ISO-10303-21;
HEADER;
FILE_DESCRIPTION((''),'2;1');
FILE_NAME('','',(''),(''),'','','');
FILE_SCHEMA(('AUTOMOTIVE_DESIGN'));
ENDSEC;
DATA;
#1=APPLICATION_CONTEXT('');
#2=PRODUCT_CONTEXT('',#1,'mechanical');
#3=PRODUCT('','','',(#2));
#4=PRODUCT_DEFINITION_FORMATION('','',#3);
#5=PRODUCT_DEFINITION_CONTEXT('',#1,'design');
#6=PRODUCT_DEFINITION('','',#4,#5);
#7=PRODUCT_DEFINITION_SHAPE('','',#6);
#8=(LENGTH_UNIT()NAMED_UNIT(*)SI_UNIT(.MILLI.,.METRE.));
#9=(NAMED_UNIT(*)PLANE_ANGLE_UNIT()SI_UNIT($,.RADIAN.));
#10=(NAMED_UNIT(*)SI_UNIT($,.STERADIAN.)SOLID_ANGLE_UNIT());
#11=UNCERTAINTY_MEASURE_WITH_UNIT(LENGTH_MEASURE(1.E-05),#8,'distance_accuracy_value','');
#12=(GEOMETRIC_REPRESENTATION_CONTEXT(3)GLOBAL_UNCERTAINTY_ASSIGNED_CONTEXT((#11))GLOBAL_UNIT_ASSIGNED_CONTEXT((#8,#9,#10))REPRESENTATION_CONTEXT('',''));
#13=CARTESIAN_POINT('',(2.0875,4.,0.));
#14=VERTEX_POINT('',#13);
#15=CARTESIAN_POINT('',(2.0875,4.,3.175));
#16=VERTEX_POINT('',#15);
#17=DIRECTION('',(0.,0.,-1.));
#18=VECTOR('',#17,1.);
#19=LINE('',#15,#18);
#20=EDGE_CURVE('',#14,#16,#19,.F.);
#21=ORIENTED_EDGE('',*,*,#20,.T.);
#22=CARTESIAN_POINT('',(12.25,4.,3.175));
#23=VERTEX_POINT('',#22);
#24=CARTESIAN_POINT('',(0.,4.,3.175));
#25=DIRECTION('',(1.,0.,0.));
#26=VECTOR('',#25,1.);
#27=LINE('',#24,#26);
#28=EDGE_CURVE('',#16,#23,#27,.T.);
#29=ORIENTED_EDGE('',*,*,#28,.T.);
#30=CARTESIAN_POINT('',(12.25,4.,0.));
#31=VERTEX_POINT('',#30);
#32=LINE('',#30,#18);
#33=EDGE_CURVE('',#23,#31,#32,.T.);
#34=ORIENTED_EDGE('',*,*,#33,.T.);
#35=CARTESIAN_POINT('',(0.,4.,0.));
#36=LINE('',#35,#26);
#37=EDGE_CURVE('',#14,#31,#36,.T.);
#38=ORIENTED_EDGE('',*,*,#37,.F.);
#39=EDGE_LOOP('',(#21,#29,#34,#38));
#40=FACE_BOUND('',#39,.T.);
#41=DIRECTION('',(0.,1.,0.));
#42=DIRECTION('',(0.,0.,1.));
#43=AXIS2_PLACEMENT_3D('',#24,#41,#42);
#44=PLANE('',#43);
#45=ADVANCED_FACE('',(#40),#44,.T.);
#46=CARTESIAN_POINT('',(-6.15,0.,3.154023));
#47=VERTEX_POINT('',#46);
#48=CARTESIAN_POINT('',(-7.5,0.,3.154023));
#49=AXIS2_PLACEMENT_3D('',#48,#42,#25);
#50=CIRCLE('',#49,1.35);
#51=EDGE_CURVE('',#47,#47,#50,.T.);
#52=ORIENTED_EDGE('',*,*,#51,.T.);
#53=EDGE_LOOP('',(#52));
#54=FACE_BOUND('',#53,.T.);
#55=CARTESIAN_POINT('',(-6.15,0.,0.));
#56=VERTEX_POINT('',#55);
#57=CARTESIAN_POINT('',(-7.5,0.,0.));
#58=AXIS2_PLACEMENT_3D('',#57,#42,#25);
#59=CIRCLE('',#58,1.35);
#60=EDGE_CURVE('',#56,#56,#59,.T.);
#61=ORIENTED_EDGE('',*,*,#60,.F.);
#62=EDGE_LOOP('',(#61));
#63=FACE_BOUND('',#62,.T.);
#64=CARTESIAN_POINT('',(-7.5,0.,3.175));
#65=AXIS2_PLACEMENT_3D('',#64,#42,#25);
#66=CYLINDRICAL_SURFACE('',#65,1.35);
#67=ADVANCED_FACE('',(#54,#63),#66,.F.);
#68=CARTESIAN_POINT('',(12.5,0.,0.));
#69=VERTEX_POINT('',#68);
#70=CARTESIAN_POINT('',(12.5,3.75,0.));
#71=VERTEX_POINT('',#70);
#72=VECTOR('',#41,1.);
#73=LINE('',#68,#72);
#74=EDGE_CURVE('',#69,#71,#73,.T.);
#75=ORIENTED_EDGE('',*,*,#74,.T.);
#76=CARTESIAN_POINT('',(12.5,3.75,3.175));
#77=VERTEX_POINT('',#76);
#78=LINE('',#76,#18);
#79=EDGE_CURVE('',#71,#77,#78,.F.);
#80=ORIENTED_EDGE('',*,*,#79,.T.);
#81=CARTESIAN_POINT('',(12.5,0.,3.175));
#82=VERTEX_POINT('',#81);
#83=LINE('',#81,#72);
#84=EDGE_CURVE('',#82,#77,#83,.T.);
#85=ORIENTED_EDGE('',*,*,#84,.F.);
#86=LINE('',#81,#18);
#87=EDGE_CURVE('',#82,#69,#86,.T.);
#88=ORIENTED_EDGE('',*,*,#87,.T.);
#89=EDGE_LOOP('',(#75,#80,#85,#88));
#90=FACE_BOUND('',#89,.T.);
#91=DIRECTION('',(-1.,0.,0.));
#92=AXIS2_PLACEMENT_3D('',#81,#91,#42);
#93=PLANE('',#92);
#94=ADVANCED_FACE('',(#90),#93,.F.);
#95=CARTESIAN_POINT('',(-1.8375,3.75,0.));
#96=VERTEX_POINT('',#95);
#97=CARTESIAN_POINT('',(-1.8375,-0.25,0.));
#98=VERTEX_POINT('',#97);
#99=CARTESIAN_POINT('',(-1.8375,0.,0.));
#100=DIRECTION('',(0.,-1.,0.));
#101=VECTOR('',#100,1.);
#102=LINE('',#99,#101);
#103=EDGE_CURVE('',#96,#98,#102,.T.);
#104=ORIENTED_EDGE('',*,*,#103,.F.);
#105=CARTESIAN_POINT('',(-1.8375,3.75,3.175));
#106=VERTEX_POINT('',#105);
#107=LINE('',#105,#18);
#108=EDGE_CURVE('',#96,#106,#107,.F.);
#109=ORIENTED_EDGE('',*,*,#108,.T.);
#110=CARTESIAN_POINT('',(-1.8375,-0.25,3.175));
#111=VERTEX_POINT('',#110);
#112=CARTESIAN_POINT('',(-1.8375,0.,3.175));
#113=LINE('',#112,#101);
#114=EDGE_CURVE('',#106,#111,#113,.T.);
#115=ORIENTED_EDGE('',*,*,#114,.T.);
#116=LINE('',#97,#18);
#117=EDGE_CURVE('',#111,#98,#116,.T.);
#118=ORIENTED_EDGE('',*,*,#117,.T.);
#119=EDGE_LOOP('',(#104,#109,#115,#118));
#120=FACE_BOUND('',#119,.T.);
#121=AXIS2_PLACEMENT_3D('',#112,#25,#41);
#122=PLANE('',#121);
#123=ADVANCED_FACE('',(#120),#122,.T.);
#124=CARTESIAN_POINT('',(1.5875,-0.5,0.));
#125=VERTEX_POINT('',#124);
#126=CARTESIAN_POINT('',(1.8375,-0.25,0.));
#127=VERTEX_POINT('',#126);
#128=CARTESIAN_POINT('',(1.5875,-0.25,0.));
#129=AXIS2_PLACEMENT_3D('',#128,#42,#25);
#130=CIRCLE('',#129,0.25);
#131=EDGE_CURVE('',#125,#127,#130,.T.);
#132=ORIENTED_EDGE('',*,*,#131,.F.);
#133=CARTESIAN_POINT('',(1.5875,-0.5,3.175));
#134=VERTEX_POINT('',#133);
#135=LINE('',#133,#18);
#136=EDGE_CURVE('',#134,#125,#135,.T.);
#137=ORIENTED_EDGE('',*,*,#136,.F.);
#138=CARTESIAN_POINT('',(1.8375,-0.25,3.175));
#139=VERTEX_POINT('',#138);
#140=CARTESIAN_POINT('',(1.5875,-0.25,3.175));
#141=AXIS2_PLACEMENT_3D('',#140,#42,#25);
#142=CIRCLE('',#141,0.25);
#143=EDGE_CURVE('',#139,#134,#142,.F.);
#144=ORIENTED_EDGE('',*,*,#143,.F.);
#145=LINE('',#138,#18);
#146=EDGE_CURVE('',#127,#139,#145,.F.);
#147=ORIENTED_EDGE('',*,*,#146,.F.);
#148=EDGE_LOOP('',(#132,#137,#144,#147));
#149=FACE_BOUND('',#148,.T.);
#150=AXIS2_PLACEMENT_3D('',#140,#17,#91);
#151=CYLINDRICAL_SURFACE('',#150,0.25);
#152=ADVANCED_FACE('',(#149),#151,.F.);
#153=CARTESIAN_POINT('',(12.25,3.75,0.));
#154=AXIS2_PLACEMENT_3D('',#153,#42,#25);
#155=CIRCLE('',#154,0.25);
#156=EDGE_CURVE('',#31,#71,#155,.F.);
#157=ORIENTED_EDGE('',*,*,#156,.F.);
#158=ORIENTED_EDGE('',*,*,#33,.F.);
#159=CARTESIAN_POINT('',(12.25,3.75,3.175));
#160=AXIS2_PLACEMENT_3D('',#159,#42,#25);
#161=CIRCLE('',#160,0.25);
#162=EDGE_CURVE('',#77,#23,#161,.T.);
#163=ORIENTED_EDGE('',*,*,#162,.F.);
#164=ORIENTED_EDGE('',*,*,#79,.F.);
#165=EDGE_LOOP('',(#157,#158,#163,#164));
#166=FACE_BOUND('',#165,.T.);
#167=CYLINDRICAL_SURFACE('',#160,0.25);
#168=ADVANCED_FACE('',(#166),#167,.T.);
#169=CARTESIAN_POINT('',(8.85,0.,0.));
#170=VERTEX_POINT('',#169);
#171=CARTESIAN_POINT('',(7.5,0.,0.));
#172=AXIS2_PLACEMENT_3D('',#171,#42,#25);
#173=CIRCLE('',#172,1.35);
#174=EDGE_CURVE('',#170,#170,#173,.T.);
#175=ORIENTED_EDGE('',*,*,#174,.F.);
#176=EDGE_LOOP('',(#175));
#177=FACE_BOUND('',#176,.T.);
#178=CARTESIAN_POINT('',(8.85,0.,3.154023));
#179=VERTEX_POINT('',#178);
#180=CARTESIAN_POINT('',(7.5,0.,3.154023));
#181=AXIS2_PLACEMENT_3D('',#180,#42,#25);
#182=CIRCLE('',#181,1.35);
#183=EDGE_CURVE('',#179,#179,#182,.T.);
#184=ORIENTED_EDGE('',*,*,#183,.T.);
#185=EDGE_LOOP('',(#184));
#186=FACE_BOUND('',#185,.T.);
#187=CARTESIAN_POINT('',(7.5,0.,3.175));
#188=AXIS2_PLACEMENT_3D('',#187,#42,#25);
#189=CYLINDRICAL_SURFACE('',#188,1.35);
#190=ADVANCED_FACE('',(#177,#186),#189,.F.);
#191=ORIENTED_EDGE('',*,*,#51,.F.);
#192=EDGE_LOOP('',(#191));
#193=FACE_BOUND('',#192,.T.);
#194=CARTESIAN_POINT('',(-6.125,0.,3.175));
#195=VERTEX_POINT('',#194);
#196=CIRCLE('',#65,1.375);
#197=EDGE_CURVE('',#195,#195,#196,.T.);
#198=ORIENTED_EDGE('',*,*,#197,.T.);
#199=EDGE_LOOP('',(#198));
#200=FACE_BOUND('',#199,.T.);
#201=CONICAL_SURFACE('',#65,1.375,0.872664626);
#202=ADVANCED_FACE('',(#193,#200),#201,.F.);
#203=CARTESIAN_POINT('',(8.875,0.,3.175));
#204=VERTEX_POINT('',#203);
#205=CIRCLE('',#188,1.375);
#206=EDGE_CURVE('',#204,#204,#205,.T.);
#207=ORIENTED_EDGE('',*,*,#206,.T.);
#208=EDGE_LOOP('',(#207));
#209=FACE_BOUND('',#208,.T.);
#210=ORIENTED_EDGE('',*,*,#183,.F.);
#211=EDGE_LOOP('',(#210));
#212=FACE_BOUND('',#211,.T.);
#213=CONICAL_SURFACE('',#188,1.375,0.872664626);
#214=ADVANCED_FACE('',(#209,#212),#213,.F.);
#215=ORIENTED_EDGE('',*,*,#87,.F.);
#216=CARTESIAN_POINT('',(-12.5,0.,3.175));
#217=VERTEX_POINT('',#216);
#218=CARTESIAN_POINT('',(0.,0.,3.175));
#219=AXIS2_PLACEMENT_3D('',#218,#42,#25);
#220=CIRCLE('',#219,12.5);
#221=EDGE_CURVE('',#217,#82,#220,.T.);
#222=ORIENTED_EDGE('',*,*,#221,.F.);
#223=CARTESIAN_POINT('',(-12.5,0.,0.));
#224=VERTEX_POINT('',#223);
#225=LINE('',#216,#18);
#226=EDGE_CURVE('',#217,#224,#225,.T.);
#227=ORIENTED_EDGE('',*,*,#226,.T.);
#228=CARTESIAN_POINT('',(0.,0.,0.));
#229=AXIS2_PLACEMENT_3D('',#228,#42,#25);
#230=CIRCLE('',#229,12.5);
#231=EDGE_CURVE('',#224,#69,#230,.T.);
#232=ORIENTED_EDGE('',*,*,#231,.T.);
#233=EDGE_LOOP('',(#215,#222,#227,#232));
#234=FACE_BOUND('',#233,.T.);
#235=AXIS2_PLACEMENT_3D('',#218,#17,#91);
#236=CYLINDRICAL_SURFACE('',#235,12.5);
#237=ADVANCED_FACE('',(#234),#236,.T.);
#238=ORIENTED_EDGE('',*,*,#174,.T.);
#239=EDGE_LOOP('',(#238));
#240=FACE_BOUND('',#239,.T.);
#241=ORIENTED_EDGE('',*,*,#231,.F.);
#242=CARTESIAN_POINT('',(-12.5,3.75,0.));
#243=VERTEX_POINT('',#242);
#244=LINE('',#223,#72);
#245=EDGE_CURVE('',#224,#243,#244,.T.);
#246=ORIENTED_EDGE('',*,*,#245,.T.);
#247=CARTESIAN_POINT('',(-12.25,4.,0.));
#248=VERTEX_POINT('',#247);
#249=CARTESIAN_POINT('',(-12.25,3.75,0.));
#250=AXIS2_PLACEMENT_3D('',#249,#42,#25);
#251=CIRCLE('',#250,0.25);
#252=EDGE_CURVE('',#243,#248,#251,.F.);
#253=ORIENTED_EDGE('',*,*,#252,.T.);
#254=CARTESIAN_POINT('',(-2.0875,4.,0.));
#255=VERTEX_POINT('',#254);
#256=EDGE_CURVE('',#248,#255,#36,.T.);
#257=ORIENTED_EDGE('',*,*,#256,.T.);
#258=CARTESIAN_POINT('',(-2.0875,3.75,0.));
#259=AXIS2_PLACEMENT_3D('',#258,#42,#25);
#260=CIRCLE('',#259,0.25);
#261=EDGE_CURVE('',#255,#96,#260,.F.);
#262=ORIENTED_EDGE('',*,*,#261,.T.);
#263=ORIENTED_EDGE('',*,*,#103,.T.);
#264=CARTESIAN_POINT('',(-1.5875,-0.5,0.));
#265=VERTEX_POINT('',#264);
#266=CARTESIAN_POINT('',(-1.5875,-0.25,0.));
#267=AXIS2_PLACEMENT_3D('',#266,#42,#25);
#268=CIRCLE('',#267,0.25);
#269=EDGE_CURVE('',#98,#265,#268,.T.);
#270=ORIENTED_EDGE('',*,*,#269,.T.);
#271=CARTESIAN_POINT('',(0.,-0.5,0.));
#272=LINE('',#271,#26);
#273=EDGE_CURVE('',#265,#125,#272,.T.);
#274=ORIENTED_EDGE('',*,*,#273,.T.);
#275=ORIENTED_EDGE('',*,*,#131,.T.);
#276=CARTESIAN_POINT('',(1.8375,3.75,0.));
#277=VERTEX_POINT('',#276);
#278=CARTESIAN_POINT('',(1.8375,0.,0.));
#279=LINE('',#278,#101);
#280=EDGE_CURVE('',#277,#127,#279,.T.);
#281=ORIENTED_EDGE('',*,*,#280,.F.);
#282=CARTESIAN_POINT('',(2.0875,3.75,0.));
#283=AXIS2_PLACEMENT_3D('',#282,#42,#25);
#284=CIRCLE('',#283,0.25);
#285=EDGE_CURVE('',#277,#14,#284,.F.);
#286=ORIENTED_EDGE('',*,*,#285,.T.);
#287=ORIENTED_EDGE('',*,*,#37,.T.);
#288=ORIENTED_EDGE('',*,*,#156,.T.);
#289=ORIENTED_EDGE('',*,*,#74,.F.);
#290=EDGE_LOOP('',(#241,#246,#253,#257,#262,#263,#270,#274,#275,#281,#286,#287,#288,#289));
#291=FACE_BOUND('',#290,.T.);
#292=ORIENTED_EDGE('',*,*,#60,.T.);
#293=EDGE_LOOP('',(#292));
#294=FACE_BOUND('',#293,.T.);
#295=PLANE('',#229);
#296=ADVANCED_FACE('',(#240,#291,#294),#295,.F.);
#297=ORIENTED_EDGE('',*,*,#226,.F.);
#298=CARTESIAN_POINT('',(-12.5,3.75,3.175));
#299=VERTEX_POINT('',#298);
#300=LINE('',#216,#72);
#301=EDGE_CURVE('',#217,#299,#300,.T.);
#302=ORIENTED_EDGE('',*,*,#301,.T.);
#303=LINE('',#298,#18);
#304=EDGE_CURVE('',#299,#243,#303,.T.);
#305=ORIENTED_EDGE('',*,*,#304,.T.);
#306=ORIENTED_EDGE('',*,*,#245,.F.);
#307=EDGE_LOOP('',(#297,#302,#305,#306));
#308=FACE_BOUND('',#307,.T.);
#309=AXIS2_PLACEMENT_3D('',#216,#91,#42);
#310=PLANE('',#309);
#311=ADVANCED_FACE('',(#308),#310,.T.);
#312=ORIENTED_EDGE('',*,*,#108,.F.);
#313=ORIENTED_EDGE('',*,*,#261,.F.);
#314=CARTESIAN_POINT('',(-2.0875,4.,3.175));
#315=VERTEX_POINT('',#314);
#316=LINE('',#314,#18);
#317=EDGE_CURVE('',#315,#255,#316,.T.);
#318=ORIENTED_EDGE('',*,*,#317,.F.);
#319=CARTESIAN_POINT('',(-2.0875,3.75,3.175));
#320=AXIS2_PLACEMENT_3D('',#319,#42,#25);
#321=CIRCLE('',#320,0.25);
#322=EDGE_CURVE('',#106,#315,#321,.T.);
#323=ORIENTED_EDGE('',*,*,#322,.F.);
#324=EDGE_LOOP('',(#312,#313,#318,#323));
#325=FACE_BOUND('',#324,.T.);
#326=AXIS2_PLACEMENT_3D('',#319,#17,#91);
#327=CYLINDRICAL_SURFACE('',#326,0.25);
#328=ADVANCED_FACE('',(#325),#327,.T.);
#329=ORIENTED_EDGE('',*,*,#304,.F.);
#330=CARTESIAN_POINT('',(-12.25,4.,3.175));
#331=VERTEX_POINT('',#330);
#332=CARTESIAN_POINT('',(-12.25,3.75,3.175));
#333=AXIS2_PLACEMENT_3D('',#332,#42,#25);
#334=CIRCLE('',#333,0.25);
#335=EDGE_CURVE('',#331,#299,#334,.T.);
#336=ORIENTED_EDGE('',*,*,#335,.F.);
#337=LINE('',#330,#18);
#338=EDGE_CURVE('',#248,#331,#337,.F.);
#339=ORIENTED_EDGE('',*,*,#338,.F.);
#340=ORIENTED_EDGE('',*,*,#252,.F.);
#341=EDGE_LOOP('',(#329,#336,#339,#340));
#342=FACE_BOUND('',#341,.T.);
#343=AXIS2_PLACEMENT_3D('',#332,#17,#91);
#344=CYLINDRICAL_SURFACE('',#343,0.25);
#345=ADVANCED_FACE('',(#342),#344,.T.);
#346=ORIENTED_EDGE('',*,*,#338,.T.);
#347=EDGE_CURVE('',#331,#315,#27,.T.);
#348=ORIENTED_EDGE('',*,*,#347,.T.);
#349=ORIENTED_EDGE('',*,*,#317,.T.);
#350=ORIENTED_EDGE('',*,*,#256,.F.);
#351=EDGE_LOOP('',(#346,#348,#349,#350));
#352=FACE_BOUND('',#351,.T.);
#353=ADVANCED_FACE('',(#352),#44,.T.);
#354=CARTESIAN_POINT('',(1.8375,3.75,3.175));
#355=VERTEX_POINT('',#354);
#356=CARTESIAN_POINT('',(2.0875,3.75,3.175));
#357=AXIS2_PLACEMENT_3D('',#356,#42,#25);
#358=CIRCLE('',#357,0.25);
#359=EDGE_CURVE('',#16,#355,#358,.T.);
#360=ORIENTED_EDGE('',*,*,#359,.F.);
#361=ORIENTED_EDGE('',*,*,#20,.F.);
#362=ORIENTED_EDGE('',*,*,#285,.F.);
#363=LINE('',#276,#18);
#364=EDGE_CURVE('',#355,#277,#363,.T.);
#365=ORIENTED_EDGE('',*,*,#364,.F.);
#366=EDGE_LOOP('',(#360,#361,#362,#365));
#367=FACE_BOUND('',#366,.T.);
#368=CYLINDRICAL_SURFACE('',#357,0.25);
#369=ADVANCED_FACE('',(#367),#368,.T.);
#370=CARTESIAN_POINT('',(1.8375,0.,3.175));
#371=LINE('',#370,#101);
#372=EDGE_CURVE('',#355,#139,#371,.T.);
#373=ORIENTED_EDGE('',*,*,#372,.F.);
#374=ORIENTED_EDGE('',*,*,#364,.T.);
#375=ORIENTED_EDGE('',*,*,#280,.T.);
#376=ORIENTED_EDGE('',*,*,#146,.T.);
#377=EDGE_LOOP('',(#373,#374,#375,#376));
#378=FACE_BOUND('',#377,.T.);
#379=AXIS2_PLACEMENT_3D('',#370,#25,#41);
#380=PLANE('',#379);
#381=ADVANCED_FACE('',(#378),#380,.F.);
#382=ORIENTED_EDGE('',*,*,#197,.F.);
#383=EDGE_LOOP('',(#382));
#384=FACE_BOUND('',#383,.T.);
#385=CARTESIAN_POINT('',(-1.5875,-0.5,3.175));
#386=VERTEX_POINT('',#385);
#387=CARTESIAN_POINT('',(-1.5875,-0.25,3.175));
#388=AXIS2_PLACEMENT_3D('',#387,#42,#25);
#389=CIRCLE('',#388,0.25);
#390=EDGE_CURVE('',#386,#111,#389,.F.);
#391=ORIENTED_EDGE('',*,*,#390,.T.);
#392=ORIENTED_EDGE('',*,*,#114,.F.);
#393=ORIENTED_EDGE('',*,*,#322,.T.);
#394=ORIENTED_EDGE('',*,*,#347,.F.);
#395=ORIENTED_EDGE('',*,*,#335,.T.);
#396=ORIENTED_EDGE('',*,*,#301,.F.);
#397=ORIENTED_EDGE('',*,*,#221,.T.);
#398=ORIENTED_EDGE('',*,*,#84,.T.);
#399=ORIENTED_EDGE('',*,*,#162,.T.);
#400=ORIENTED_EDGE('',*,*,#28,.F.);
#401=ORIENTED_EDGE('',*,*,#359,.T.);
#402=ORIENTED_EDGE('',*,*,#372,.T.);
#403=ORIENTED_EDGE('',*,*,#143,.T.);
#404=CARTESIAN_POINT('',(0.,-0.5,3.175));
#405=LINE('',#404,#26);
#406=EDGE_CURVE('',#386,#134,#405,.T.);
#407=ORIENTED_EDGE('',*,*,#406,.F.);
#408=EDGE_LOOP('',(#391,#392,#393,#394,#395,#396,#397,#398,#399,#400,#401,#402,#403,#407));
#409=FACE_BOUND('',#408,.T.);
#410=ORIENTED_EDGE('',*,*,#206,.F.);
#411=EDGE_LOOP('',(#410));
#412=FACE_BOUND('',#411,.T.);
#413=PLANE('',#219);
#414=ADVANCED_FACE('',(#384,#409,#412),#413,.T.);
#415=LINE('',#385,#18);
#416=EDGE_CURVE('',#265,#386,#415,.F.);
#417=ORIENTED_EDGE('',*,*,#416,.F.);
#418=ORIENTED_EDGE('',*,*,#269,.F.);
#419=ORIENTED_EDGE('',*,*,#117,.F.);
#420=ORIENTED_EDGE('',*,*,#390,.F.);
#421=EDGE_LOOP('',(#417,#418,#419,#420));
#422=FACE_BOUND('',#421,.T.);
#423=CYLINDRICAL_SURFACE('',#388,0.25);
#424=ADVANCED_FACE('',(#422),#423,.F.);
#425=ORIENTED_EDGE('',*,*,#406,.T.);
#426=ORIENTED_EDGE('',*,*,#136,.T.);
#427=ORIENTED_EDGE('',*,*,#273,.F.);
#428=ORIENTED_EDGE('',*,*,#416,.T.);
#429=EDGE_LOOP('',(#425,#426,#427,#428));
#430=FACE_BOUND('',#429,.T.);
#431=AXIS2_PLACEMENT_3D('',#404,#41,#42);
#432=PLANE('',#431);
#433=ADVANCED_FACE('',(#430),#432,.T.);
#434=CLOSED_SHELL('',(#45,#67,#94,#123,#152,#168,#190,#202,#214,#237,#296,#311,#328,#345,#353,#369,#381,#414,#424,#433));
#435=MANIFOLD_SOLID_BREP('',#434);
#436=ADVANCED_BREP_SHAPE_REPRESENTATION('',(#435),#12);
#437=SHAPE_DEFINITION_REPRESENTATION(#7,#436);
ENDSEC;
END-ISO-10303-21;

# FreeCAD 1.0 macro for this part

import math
import FreeCAD as App
import Part
import Sketcher
from FreeCAD import Vector
Q = App.Units.Quantity


def edges_at(feature, points):
    """Names of the edges that pass closest to the given points."""
    edges = feature.Shape.Edges
    near = lambda p: min(range(len(edges)), key=lambda i: edges[i].distToShape(Part.Vertex(*p))[0])
    return sorted({f"Edge{near(p) + 1}" for p in points})

doc = App.newDocument("Part")
params = doc.addObject("Spreadsheet::Sheet", "Params")
for row, (alias, value) in enumerate([
    ("sketch1_radius", "12.5 mm"),
    ("sketch1_height", "4 mm"),
    ("sketch1_height2", "4.5 mm"),
    ("pad1_length", "3.175 mm"),
    ("sketch2_diameter", "2.7 mm"),
    ("hole_diameter", "2.7 mm"),
    ("hole_csink_diameter", "2.75 mm"),
    ("fillet_radius", "0.25 mm"),
], start=1):
    params.set(f"A{row}", alias)
    params.set(f"B{row}", "=" + value)
    params.setAlias(f"B{row}", alias)

body = doc.addObject("PartDesign::Body", "Body")

# Sketch on XY plane
sketch1 = body.newObject("Sketcher::SketchObject", "Sketch")
sketch1.AttachmentSupport = (doc.getObject("XY_Plane"), [""])
sketch1.MapMode = "FlatFace"
sketch1.addGeometry(Part.LineSegment(Vector(-12.5, 4, 0), Vector(-12.5, 0, 0)), False)
sketch1.addGeometry(Part.ArcOfCircle(Part.Circle(Vector(0, 0, 0), Vector(0, 0, 1), 12.5), math.radians(180), math.radians(360)), False)
sketch1.addGeometry(Part.LineSegment(Vector(12.5, 0, 0), Vector(12.5, 4, 0)), False)
sketch1.addGeometry(Part.LineSegment(Vector(12.5, 4, 0), Vector(1.8375, 4, 0)), False)
sketch1.addGeometry(Part.LineSegment(Vector(1.8375, 4, 0), Vector(1.8375, -0.5, 0)), False)
sketch1.addGeometry(Part.LineSegment(Vector(1.8375, -0.5, 0), Vector(-1.8375, -0.5, 0)), False)
sketch1.addGeometry(Part.LineSegment(Vector(-1.8375, -0.5, 0), Vector(-1.8375, 4, 0)), False)
sketch1.addGeometry(Part.LineSegment(Vector(-1.8375, 4, 0), Vector(-12.5, 4, 0)), False)
sketch1.addConstraint(Sketcher.Constraint("Tangent", 0, 2, 1, 1))
sketch1.addConstraint(Sketcher.Constraint("Tangent", 1, 2, 2, 1))
sketch1.addConstraint(Sketcher.Constraint("Coincident", 2, 2, 3, 1))
sketch1.addConstraint(Sketcher.Constraint("Coincident", 3, 2, 4, 1))
sketch1.addConstraint(Sketcher.Constraint("Coincident", 4, 2, 5, 1))
sketch1.addConstraint(Sketcher.Constraint("Coincident", 5, 2, 6, 1))
sketch1.addConstraint(Sketcher.Constraint("Coincident", 6, 2, 7, 1))
sketch1.addConstraint(Sketcher.Constraint("Coincident", 7, 2, 0, 1))
sketch1.addConstraint(Sketcher.Constraint("Vertical", 0))
sketch1.addConstraint(Sketcher.Constraint("Vertical", 2))
sketch1.addConstraint(Sketcher.Constraint("Horizontal", 3))
sketch1.addConstraint(Sketcher.Constraint("Vertical", 4))
sketch1.addConstraint(Sketcher.Constraint("Horizontal", 5))
sketch1.addConstraint(Sketcher.Constraint("Vertical", 6))
sketch1.addConstraint(Sketcher.Constraint("Horizontal", 7))
sketch1.addConstraint(Sketcher.Constraint("Coincident", 1, 3, -1, 1))
sketch1.addConstraint(Sketcher.Constraint("Symmetric", 3, 2, 6, 2, -2))
sketch1.addConstraint(Sketcher.Constraint("Radius", 1, Q("12.5 mm")))
sketch1.addConstraint(Sketcher.Constraint("DistanceY", 0, 2, 0, 1, Q("4 mm")))
sketch1.addConstraint(Sketcher.Constraint("DistanceY", 4, 2, 4, 1, Q("4.5 mm")))
sketch1.addConstraint(Sketcher.Constraint("DistanceX", 5, 2, 5, 1, Q("3.675 mm")))
sketch1.setExpression("Constraints[17]", "Params.sketch1_radius")
sketch1.setExpression("Constraints[18]", "Params.sketch1_height")
sketch1.setExpression("Constraints[19]", "Params.sketch1_height2")
pad1 = body.newObject("PartDesign::Pad", "Pad")
pad1.Profile = sketch1
pad1.setExpression("Length", "Params.pad1_length")

# Sketch on XY plane
sketch2 = body.newObject("Sketcher::SketchObject", "Sketch001")
sketch2.AttachmentSupport = (doc.getObject("XY_Plane"), [""])
sketch2.MapMode = "FlatFace"
sketch2.AttachmentOffset = App.Placement(Vector(0, 0, 3.175), App.Rotation())
sketch2.addGeometry(Part.Circle(Vector(-7.5, 0, 0), Vector(0, 0, 1), 1.35), False)
sketch2.addGeometry(Part.Circle(Vector(7.5, 0, 0), Vector(0, 0, 1), 1.35), False)
sketch2.addConstraint(Sketcher.Constraint("Equal", 0, 1))
sketch2.addConstraint(Sketcher.Constraint("Symmetric", 0, 3, 1, 3, -1, 1))
sketch2.addConstraint(Sketcher.Constraint("PointOnObject", 0, 3, -1))
sketch2.addConstraint(Sketcher.Constraint("Diameter", 0, Q("2.7 mm")))
sketch2.addConstraint(Sketcher.Constraint("DistanceX", 0, 3, 1, 3, Q("15 mm")))
sketch2.setExpression("Constraints[3]", "Params.sketch2_diameter")
doc.recompute()
hole = body.newObject("PartDesign::Hole", "Hole")
hole.Profile = sketch2
hole.ThreadType = "None"
hole.setExpression("Diameter", "Params.hole_diameter")
hole.DepthType = "ThroughAll"
hole.HoleCutType = "Countersink"
hole.setExpression("HoleCutDiameter", "Params.hole_csink_diameter")
hole.HoleCutCountersinkAngle = 100
doc.recompute()

fillet = body.newObject("PartDesign::Fillet", "Fillet")
fillet.Base = (hole, edges_at(hole, [
    (-12.5, 4, 1.587),
    (-1.837, 4, 1.587),
    (-1.837, -0.5, 1.587),
    (1.837, -0.5, 1.587),
    (1.837, 4, 1.587),
    (12.5, 4, 1.587),
]))
fillet.setExpression("Radius", "Params.fillet_radius")

doc.recompute()
